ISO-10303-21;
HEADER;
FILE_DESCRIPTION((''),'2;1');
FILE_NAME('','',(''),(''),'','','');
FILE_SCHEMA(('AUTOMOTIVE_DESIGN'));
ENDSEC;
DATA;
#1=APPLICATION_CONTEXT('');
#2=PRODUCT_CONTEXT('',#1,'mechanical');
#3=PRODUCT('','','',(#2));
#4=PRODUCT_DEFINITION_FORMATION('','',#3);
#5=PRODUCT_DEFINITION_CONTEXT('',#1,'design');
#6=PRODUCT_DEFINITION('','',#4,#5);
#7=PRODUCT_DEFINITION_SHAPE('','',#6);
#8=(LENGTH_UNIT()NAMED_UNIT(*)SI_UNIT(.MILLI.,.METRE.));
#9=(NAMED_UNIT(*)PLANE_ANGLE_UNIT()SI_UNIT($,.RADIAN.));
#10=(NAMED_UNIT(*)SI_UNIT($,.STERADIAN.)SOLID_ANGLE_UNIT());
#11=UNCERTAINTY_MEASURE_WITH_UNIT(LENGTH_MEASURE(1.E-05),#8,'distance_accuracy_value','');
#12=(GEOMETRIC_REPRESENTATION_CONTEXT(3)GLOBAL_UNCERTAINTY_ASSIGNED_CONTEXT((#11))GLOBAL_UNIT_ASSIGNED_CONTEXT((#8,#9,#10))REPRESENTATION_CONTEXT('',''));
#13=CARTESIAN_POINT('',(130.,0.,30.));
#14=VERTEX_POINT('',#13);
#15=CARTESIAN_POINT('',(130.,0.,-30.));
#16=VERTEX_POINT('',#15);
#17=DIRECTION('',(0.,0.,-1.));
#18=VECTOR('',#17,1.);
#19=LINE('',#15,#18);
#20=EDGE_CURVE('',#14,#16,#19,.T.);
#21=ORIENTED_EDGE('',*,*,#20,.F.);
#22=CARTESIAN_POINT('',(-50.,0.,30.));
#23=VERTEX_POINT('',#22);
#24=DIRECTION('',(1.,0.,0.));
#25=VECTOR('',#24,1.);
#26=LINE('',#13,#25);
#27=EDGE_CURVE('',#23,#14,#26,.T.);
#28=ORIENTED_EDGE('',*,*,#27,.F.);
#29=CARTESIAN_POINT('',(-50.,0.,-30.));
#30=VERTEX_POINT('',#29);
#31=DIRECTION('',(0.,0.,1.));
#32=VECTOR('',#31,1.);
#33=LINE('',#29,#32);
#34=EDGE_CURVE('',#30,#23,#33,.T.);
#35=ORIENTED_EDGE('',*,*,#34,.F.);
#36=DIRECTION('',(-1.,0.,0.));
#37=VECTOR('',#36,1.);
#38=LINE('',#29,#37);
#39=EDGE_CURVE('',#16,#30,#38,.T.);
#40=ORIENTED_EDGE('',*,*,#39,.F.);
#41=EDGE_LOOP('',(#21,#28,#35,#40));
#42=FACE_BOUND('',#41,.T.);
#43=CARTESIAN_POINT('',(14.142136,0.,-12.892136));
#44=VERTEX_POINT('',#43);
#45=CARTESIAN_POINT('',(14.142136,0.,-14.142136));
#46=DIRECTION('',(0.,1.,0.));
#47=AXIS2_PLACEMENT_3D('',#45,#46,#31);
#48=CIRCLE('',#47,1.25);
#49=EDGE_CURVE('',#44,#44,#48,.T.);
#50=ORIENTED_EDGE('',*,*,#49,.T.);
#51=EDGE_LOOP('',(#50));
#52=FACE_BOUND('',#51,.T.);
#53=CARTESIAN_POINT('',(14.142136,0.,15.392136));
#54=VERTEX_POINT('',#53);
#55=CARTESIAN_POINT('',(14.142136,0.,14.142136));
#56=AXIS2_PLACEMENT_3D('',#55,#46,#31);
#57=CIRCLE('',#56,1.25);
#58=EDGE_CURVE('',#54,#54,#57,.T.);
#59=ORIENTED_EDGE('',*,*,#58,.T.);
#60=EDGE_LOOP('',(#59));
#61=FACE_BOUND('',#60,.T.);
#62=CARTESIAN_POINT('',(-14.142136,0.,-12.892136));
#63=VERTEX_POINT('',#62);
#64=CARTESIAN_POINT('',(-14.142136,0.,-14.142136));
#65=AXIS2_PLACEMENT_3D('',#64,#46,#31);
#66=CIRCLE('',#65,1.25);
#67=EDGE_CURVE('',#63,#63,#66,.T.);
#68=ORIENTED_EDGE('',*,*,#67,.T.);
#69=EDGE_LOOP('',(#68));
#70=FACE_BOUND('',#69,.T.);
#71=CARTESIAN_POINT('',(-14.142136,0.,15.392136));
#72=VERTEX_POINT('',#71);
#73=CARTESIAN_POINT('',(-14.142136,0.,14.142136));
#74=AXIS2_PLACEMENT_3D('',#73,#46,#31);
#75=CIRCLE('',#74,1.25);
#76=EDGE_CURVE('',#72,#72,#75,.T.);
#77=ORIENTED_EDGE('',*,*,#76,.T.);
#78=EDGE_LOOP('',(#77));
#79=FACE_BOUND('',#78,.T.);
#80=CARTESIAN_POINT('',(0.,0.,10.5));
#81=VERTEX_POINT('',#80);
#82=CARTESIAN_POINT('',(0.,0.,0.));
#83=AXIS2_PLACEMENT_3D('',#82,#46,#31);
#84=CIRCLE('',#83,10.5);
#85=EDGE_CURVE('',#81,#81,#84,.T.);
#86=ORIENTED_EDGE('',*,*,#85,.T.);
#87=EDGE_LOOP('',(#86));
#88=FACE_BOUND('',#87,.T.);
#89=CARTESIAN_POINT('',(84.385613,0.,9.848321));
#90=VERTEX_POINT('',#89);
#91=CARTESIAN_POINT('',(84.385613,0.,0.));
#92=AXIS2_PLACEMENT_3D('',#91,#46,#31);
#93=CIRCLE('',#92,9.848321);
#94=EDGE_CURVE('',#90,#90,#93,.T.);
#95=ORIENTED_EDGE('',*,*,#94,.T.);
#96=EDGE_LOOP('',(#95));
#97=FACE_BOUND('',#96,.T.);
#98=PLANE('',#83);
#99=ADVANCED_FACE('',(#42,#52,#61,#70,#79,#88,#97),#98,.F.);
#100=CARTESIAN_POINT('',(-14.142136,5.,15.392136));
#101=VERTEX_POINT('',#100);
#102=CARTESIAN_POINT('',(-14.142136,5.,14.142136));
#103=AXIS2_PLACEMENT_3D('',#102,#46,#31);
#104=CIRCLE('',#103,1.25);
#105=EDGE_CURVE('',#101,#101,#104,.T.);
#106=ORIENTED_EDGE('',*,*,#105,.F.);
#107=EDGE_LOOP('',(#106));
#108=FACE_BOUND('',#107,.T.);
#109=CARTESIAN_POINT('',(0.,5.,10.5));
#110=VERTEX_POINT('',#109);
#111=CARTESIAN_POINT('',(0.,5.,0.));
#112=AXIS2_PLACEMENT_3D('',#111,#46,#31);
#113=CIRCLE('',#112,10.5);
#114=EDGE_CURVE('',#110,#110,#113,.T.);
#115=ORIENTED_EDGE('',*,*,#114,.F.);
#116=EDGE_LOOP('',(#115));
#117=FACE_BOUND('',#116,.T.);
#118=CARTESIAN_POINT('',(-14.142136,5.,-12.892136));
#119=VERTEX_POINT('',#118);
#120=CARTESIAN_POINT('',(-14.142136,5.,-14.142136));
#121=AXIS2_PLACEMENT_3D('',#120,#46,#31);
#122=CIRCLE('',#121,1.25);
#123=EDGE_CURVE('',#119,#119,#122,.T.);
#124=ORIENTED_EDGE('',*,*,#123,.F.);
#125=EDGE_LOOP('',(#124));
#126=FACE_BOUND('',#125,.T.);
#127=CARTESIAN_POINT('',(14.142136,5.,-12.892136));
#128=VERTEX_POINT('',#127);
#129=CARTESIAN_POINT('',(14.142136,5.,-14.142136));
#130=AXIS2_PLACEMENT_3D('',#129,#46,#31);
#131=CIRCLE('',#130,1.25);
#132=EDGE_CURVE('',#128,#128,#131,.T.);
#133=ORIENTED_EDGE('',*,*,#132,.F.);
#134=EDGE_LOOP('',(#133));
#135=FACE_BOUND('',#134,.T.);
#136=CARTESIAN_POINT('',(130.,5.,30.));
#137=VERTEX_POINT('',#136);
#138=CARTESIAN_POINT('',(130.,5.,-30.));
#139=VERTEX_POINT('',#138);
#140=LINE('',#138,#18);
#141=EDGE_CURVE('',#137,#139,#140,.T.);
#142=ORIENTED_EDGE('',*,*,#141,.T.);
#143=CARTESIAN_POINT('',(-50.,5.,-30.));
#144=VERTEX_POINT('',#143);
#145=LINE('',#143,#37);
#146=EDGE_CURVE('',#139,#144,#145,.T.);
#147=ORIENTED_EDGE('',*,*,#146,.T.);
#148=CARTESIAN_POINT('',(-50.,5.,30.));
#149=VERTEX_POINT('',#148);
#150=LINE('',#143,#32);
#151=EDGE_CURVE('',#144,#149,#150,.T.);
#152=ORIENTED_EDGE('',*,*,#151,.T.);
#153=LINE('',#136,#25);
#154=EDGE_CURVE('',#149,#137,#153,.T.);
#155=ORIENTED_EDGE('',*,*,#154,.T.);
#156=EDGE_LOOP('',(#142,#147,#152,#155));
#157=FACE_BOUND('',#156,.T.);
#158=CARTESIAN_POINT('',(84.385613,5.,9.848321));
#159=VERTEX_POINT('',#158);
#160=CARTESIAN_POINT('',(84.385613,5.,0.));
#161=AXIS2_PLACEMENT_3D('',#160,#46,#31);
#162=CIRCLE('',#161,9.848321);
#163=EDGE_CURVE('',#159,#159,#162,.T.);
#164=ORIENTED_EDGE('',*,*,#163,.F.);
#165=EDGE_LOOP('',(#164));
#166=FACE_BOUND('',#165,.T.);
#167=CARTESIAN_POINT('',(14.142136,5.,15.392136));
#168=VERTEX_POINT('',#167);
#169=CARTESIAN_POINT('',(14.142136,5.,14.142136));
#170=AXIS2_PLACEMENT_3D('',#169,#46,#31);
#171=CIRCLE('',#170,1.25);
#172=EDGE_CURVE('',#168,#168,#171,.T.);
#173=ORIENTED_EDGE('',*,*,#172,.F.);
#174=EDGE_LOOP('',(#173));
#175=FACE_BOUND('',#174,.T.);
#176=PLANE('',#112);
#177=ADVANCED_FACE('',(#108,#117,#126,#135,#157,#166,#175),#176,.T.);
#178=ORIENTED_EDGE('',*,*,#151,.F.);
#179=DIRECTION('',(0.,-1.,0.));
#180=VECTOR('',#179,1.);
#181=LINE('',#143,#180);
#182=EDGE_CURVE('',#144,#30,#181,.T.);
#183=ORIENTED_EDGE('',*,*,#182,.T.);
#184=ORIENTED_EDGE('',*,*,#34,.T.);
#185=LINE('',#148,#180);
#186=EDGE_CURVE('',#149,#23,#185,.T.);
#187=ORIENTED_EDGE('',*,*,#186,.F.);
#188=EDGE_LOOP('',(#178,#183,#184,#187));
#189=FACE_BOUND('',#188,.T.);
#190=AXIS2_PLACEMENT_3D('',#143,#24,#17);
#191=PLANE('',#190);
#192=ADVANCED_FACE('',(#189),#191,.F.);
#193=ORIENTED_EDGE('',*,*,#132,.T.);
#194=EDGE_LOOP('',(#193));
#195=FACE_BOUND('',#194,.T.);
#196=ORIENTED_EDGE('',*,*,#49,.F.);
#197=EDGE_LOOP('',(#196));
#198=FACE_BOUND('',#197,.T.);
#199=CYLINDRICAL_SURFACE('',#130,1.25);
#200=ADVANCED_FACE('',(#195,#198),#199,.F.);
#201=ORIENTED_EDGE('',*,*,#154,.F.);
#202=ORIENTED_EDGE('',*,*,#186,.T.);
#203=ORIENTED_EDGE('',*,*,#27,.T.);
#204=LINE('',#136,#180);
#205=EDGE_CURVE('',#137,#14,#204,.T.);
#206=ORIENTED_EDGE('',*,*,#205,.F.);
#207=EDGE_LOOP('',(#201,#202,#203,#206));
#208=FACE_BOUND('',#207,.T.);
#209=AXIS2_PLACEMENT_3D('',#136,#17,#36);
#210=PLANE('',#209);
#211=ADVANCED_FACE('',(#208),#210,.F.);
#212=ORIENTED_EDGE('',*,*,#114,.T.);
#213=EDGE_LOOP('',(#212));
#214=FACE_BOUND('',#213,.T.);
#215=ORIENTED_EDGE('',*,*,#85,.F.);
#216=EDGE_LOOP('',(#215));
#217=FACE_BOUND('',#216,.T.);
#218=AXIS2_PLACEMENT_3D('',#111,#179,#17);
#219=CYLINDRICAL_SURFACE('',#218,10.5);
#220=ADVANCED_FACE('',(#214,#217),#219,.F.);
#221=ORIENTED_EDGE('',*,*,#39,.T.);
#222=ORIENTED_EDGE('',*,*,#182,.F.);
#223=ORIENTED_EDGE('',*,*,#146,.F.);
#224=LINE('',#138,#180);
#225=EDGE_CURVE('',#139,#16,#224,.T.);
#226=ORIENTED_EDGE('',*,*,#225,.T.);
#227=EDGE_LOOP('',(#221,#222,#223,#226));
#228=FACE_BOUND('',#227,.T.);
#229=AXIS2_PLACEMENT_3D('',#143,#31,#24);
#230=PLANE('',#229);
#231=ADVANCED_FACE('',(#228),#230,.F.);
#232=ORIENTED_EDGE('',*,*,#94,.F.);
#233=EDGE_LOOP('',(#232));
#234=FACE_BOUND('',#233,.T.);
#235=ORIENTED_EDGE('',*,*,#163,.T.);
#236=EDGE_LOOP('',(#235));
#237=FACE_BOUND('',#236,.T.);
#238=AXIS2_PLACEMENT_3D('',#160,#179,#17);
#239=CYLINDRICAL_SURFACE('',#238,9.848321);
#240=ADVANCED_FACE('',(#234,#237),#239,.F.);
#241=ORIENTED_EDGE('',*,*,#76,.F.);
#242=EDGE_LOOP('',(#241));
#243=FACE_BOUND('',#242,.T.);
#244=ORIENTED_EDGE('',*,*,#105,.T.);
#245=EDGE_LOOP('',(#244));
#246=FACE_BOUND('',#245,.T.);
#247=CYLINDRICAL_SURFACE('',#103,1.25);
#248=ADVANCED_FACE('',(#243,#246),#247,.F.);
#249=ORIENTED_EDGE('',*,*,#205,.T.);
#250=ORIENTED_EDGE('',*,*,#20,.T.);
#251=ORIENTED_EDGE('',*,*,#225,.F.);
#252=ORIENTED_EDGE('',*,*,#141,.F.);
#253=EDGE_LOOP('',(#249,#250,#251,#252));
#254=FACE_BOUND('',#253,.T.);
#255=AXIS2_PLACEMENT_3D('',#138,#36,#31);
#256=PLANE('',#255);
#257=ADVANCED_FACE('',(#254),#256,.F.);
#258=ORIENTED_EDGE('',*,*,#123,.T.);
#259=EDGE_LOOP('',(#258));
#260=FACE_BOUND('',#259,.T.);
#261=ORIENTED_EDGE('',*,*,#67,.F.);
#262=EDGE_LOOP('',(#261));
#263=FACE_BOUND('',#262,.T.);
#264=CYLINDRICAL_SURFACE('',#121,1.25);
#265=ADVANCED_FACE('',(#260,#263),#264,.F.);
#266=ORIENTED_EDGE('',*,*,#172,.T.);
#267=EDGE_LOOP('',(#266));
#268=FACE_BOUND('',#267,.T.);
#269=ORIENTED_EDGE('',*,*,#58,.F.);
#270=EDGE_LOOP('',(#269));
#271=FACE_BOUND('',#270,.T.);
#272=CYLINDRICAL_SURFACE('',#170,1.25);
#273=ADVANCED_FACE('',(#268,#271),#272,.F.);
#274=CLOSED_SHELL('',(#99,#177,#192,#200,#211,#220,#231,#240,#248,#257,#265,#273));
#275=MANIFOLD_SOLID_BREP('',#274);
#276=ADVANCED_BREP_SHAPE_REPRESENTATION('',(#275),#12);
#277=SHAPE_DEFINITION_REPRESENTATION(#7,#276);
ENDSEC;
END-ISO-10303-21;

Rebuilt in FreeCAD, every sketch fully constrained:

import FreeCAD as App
import Part
import Sketcher
Q = App.Units.Quantity


def add_polygon(sketch, points):
    """Adds a closed chain of lines whose ends are joined by coincident constraints."""
    first, n = sketch.GeometryCount, len(points)
    for a, b in zip(points, points[1:] + points[:1]):
        sketch.addGeometry(Part.LineSegment(App.Vector(*a, 0), App.Vector(*b, 0)), False)
    for i in range(n):
        sketch.addConstraint(Sketcher.Constraint("Coincident", first + i, 2, first + (i + 1) % n, 1))

doc = App.newDocument("Part")
body = doc.addObject("PartDesign::Body", "Body")

sketch1 = doc.addObject("Sketcher::SketchObject", "Sketch")
body.addObject(sketch1)
sketch1.AttachmentSupport = (doc.XZ_Plane, [""])
sketch1.MapMode = "FlatFace"
add_polygon(sketch1, [(-50, -30), (-50, 30), (130, 30), (130, -30)])
sketch1.addGeometry(Part.Circle(App.Vector(0, 0, 0), App.Vector(0, 0, 1), 10.5), False)
sketch1.addGeometry(Part.Circle(App.Vector(84.385613, 0, 0), App.Vector(0, 0, 1), 9.848321), False)
sketch1.addConstraint([
    Sketcher.Constraint("Vertical", 0),
    Sketcher.Constraint("Horizontal", 1),
    Sketcher.Constraint("Vertical", 2),
    Sketcher.Constraint("Horizontal", 3),
    Sketcher.Constraint("Coincident", 4, 3, -1, 1),
    Sketcher.Constraint("PointOnObject", 5, 3, -1),
    Sketcher.Constraint("Diameter", 4, Q("21 mm")),
    Sketcher.Constraint("DistanceX", 1, 1, 1, 2, Q("180 mm")),
    Sketcher.Constraint("DistanceY", 0, 1, 0, 2, Q("60 mm")),
    Sketcher.Constraint("DistanceX", 0, 2, -1, 1, Q("50 mm")),
    Sketcher.Constraint("DistanceY", -1, 1, 0, 2, Q("30 mm")),
    Sketcher.Constraint("Diameter", 5, Q("19.696642 mm")),
    Sketcher.Constraint("DistanceX", -1, 1, 5, 3, Q("84.385613 mm")),
])
pad1 = doc.addObject("PartDesign::Pad", "Pad")
body.addObject(pad1)
pad1.Profile = sketch1
pad1.Length = 5
pad1.Reversed = True

sketch2 = doc.addObject("Sketcher::SketchObject", "Sketch001")
body.addObject(sketch2)
sketch2.AttachmentSupport = (doc.XZ_Plane, [""])
sketch2.MapMode = "FlatFace"
sketch2.AttachmentOffset = App.Placement(App.Vector(0, 0, -5), App.Rotation())
sketch2.addGeometry([
    Part.Circle(App.Vector(-14.142136, -14.142136, 0), App.Vector(0, 0, 1), 1.25),
    Part.Circle(App.Vector(14.142136, -14.142136, 0), App.Vector(0, 0, 1), 1.25),
    Part.Circle(App.Vector(14.142136, 14.142136, 0), App.Vector(0, 0, 1), 1.25),
    Part.Circle(App.Vector(-14.142136, 14.142136, 0), App.Vector(0, 0, 1), 1.25),
    Part.Circle(App.Vector(0, 0, 0), App.Vector(0, 0, 1), 1.25),
], False)
sketch2.addConstraint([
    Sketcher.Constraint("Coincident", 4, 3, -1, 1),
    Sketcher.Constraint("Equal", 0, 1),
    Sketcher.Constraint("Equal", 1, 2),
    Sketcher.Constraint("Equal", 2, 3),
    Sketcher.Constraint("Equal", 3, 4),
    Sketcher.Constraint("Symmetric", 0, 3, 2, 3, -1, 1),
    Sketcher.Constraint("Symmetric", 1, 3, 3, 3, -1, 1),
    Sketcher.Constraint("Symmetric", 0, 3, 1, 3, -2),
    Sketcher.Constraint("Diameter", 0, Q("2.5 mm")),
    Sketcher.Constraint("DistanceX", 0, 3, 1, 3, Q("28.284271 mm")),
    Sketcher.Constraint("DistanceY", 1, 3, 2, 3, Q("28.284271 mm")),
])
doc.recompute()
hole = doc.addObject("PartDesign::Hole", "Hole")
body.addObject(hole)
hole.Profile = sketch2
hole.ThreadType = "None"
hole.Diameter = 2.5
hole.DepthType = "ThroughAll"
hole.Reversed = True

doc.recompute()
